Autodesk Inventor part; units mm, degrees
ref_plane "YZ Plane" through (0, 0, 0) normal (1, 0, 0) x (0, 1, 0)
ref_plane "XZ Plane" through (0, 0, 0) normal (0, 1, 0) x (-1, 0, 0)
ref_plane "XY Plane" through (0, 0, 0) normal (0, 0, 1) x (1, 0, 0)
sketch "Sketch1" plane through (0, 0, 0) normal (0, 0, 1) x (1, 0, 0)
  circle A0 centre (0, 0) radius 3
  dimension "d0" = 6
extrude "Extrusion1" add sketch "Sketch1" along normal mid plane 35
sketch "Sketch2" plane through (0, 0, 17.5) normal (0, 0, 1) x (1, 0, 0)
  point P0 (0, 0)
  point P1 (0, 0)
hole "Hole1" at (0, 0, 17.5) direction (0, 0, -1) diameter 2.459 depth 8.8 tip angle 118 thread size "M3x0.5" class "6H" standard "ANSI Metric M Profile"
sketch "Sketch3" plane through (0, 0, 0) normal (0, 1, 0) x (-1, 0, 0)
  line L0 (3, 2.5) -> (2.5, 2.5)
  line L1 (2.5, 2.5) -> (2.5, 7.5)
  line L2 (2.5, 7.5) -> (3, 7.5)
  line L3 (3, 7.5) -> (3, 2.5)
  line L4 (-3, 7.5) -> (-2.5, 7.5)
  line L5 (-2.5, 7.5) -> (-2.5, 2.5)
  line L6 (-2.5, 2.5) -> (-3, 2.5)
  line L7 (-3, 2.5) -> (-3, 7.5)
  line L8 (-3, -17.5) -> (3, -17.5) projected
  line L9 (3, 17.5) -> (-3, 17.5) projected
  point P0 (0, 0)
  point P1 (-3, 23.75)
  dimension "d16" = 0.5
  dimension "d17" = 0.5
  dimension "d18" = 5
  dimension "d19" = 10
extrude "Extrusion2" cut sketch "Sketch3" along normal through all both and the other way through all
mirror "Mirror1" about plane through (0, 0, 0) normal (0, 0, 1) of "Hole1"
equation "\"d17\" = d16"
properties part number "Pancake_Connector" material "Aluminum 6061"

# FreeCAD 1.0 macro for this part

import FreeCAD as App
import Part
import Sketcher
Q = App.Units.Quantity

doc = App.newDocument("Part")
params = doc.addObject("Spreadsheet::Sheet", "Params")
for row, (alias, value) in enumerate([
    ("sketch1_diameter", "6 mm"),
    ("pad1_length", "35 mm"),
    ("hole_diameter", "2.459 mm"),
    ("hole_depth", "8.8 mm"),
    ("sketch3_height", "5 mm"),
    ("sketch3_width", "0.5 mm"),
], start=1):
    params.set(f"A{row}", alias)
    params.set(f"B{row}", "=" + value)
    params.setAlias(f"B{row}", alias)

body = doc.addObject("PartDesign::Body", "Body")

# Sketch on XY plane
sketch1 = body.newObject("Sketcher::SketchObject", "Sketch")
sketch1.AttachmentSupport = (doc.getObject("XY_Plane"), [""])
sketch1.MapMode = "FlatFace"
sketch1.addGeometry(Part.Circle(App.Vector(0, 0, 0), App.Vector(0, 0, 1), 3), False)
sketch1.addConstraint(Sketcher.Constraint("Coincident", 0, 3, -1, 1))
sketch1.addConstraint(Sketcher.Constraint("Diameter", 0, Q("6 mm")))
sketch1.setExpression("Constraints[1]", "Params.sketch1_diameter")
pad1 = body.newObject("PartDesign::Pad", "Pad")
pad1.Profile = sketch1
pad1.setExpression("Length", "Params.pad1_length")
pad1.Midplane = True

# Sketch on XY plane
sketch2 = body.newObject("Sketcher::SketchObject", "Sketch001")
sketch2.AttachmentSupport = (doc.getObject("XY_Plane"), [""])
sketch2.MapMode = "FlatFace"
sketch2.AttachmentOffset = App.Placement(App.Vector(0, 0, 17.5), App.Rotation())
sketch2.addGeometry(Part.Circle(App.Vector(0, 0, 0), App.Vector(0, 0, 1), 1.2295), False)
sketch2.addConstraint(Sketcher.Constraint("Coincident", 0, 3, -1, 1))
sketch2.addConstraint(Sketcher.Constraint("Diameter", 0, Q("2.459 mm")))
doc.recompute()
hole = body.newObject("PartDesign::Hole", "Hole")
hole.Profile = sketch2
hole.ThreadType = "None"
hole.setExpression("Diameter", "Params.hole_diameter")
hole.DepthType = "Dimension"
hole.setExpression("Depth", "Params.hole_depth")
hole.DrillPoint = "Angled"
hole.DrillPointAngle = 118

# Sketch on XZ plane
sketch3 = body.newObject("Sketcher::SketchObject", "Sketch002")
sketch3.AttachmentSupport = (doc.getObject("XZ_Plane"), [""])
sketch3.MapMode = "FlatFace"
sketch3.addGeometry(Part.LineSegment(App.Vector(-2.5, 2.5, 0), App.Vector(-3, 2.5, 0)), False)
sketch3.addGeometry(Part.LineSegment(App.Vector(-3, 2.5, 0), App.Vector(-3, 7.5, 0)), False)
sketch3.addGeometry(Part.LineSegment(App.Vector(-3, 7.5, 0), App.Vector(-2.5, 7.5, 0)), False)
sketch3.addGeometry(Part.LineSegment(App.Vector(-2.5, 7.5, 0), App.Vector(-2.5, 2.5, 0)), False)
sketch3.addGeometry(Part.LineSegment(App.Vector(2.5, 7.5, 0), App.Vector(3, 7.5, 0)), False)
sketch3.addGeometry(Part.LineSegment(App.Vector(3, 7.5, 0), App.Vector(3, 2.5, 0)), False)
sketch3.addGeometry(Part.LineSegment(App.Vector(3, 2.5, 0), App.Vector(2.5, 2.5, 0)), False)
sketch3.addGeometry(Part.LineSegment(App.Vector(2.5, 2.5, 0), App.Vector(2.5, 7.5, 0)), False)
sketch3.addConstraint(Sketcher.Constraint("Coincident", 0, 2, 1, 1))
sketch3.addConstraint(Sketcher.Constraint("Coincident", 1, 2, 2, 1))
sketch3.addConstraint(Sketcher.Constraint("Coincident", 2, 2, 3, 1))
sketch3.addConstraint(Sketcher.Constraint("Coincident", 3, 2, 0, 1))
sketch3.addConstraint(Sketcher.Constraint("Coincident", 4, 2, 5, 1))
sketch3.addConstraint(Sketcher.Constraint("Coincident", 5, 2, 6, 1))
sketch3.addConstraint(Sketcher.Constraint("Coincident", 6, 2, 7, 1))
sketch3.addConstraint(Sketcher.Constraint("Coincident", 7, 2, 4, 1))
sketch3.addConstraint(Sketcher.Constraint("Horizontal", 0))
sketch3.addConstraint(Sketcher.Constraint("Vertical", 1))
sketch3.addConstraint(Sketcher.Constraint("Horizontal", 2))
sketch3.addConstraint(Sketcher.Constraint("Vertical", 3))
sketch3.addConstraint(Sketcher.Constraint("Horizontal", 4))
sketch3.addConstraint(Sketcher.Constraint("Vertical", 5))
sketch3.addConstraint(Sketcher.Constraint("Horizontal", 6))
sketch3.addConstraint(Sketcher.Constraint("Vertical", 7))
sketch3.addConstraint(Sketcher.Constraint("Symmetric", 1, 2, 4, 2, -2))
sketch3.addConstraint(Sketcher.Constraint("Symmetric", 3, 2, 6, 2, -2))
sketch3.addConstraint(Sketcher.Constraint("DistanceY", 1, 1, 1, 2, Q("5 mm")))
sketch3.addConstraint(Sketcher.Constraint("DistanceX", 0, 2, 0, 1, Q("0.5 mm")))
sketch3.addConstraint(Sketcher.Constraint("DistanceX", 3, 2, 6, 2, Q("5 mm")))
sketch3.addConstraint(Sketcher.Constraint("DistanceY", -1, 1, 0, 2, Q("2.5 mm")))
sketch3.setExpression("Constraints[18]", "Params.sketch3_height")
sketch3.setExpression("Constraints[19]", "Params.sketch3_width")
pocket1 = body.newObject("PartDesign::Pocket", "Pocket")
pocket1.Profile = sketch3
pocket1.Type = "ThroughAll"
pocket1.Midplane = True
doc.recompute()

mirrored = body.newObject("PartDesign::Mirrored", "Mirrored")
mirrored.Originals = [hole]
mirrored.MirrorPlane = (doc.getObject("XY_Plane"), [""])
body.Tip = mirrored

doc.recompute()
